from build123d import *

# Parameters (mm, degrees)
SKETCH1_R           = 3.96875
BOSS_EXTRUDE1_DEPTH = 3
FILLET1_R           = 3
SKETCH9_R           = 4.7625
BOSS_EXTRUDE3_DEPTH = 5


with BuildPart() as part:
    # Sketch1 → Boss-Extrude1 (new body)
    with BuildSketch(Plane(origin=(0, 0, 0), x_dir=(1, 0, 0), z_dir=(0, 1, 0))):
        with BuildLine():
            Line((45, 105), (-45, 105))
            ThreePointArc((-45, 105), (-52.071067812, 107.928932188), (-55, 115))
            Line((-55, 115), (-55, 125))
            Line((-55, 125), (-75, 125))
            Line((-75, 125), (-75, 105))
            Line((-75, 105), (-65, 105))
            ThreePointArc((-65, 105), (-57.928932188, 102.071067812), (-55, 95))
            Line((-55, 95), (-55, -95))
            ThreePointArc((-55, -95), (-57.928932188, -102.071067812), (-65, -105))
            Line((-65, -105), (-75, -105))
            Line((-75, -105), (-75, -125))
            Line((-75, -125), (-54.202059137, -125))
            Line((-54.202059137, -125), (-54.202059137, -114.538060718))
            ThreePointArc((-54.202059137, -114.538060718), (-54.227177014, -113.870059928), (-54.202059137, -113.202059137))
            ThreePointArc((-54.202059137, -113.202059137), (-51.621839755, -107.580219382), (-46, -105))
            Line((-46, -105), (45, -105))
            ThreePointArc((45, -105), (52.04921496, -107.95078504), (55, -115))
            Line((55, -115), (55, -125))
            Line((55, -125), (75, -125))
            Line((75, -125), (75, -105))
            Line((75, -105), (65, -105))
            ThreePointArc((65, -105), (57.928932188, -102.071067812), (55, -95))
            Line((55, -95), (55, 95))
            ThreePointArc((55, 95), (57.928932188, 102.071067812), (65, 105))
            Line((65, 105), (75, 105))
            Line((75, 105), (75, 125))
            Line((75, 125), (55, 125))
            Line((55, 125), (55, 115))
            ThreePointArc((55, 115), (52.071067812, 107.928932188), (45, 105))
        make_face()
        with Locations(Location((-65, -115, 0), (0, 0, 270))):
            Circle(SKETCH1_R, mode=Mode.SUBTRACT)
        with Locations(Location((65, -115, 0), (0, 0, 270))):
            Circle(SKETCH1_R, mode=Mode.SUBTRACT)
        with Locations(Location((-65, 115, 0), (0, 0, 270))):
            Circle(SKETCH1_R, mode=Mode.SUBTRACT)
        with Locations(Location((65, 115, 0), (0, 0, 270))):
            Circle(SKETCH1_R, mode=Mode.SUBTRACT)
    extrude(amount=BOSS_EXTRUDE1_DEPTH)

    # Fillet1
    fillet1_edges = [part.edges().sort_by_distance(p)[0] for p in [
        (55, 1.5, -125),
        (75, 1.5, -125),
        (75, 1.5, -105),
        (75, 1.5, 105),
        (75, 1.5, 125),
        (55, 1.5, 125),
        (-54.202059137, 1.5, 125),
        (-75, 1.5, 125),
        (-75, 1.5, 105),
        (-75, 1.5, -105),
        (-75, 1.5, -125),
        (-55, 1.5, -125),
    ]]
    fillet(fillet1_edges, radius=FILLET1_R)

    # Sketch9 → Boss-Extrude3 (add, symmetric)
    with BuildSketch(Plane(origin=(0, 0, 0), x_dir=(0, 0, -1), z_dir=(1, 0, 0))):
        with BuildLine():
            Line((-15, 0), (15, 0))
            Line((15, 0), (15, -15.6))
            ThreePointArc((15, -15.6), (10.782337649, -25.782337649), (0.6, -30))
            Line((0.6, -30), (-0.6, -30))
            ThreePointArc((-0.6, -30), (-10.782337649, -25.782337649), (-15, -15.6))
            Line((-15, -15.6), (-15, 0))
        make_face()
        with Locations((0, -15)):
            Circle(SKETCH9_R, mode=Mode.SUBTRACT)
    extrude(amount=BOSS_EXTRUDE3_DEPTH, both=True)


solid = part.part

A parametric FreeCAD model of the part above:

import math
import FreeCAD as App
import Part
import Sketcher

V = App.Vector
Q = App.Units.Quantity


def edges_at(feature, points):
    """Names of the edges that pass closest to the given points."""
    edges = feature.Shape.Edges
    near = lambda p: min(range(len(edges)), key=lambda i: edges[i].distToShape(Part.Vertex(*p))[0])
    return sorted({f"Edge{near(p) + 1}" for p in points})

doc = App.newDocument("Part")
params = doc.addObject("Spreadsheet::Sheet", "Params")
for row, (alias, value) in enumerate([
    ("sketch1_radius", "10 mm"),
    ("sketch1_width", "90 mm"),
    ("sketch1_width2", "20 mm"),
    ("sketch1_width3", "91 mm"),
    ("sketch1_height", "190 mm"),
    ("pad1_length", "3 mm"),
    ("fillet_radius", "3 mm"),
    ("sketch2_radius", "14.4 mm"),
    ("sketch2_height", "30 mm"),
    ("sketch2_width", "15.6 mm"),
    ("pad2_length", "10 mm"),
], start=1):
    params.set(f"A{row}", alias)
    params.set(f"B{row}", "=" + value)
    params.setAlias(f"B{row}", alias)

body = doc.addObject("PartDesign::Body", "Body")

# Sketch on XZ plane
sketch1 = doc.addObject("Sketcher::SketchObject", "Sketch")
body.addObject(sketch1)
sketch1.AttachmentSupport = (doc.XZ_Plane, [""])
sketch1.MapMode = "FlatFace"
sketch1.addGeometry([
    Part.LineSegment(V(45, -105, 0), V(-45, -105, 0)),  # 0
    Part.ArcOfCircle(Part.Circle(V(-45, -115, 0), V(0, 0, 1), 10), math.radians(90), math.radians(180)),  # 1
    Part.LineSegment(V(-55, -115, 0), V(-55, -125, 0)),  # 2
    Part.LineSegment(V(-55, -125, 0), V(-75, -125, 0)),  # 3
    Part.LineSegment(V(-75, -125, 0), V(-75, -105, 0)),  # 4
    Part.LineSegment(V(-75, -105, 0), V(-65, -105, 0)),  # 5
    Part.ArcOfCircle(Part.Circle(V(-65, -95, 0), V(0, 0, 1), 10), math.radians(-90), math.radians(0)),  # 6
    Part.LineSegment(V(-55, -95, 0), V(-55, 95, 0)),  # 7
    Part.ArcOfCircle(Part.Circle(V(-65, 95, 0), V(0, 0, 1), 10), math.radians(0), math.radians(90)),  # 8
    Part.LineSegment(V(-65, 105, 0), V(-75, 105, 0)),  # 9
    Part.LineSegment(V(-75, 105, 0), V(-75, 125, 0)),  # 10
    Part.LineSegment(V(-75, 125, 0), V(-54.2, 125, 0)),  # 11
    Part.LineSegment(V(-54.2, 125, 0), V(-54.2, 114.5, 0)),  # 12
    Part.ArcOfCircle(Part.Circle(V(-45.3, 113.9, 0), V(0, 0, 1), 8.9), math.radians(175.69), math.radians(184.31)),  # 13
    Part.ArcOfCircle(Part.Circle(V(-45.3, 113.9, 0), V(0, 0, 1), 8.9), math.radians(-176), math.radians(-94)),  # 14
    Part.LineSegment(V(-46, 105, 0), V(45, 105, 0)),  # 15
    Part.ArcOfCircle(Part.Circle(V(44.9, 115.1, 0), V(0, 0, 1), 10.1), math.radians(-90), math.radians(0)),  # 16
    Part.LineSegment(V(55, 115, 0), V(55, 125, 0)),  # 17
    Part.LineSegment(V(55, 125, 0), V(75, 125, 0)),  # 18
    Part.LineSegment(V(75, 125, 0), V(75, 105, 0)),  # 19
    Part.LineSegment(V(75, 105, 0), V(65, 105, 0)),  # 20
    Part.ArcOfCircle(Part.Circle(V(65, 95, 0), V(0, 0, 1), 10), math.radians(90), math.radians(180)),  # 21
    Part.LineSegment(V(55, 95, 0), V(55, -95, 0)),  # 22
    Part.ArcOfCircle(Part.Circle(V(65, -95, 0), V(0, 0, 1), 10), math.radians(180), math.radians(270)),  # 23
    Part.LineSegment(V(65, -105, 0), V(75, -105, 0)),  # 24
    Part.LineSegment(V(75, -105, 0), V(75, -125, 0)),  # 25
    Part.LineSegment(V(75, -125, 0), V(55, -125, 0)),  # 26
    Part.LineSegment(V(55, -125, 0), V(55, -115, 0)),  # 27
    Part.ArcOfCircle(Part.Circle(V(45, -115, 0), V(0, 0, 1), 10), math.radians(0), math.radians(90)),  # 28
    Part.Circle(V(-65, 115, 0), V(0, 0, 1), 4),  # 29
    Part.Circle(V(65, 115, 0), V(0, 0, 1), 4),  # 30
    Part.Circle(V(-65, -115, 0), V(0, 0, 1), 4),  # 31
    Part.Circle(V(65, -115, 0), V(0, 0, 1), 4),  # 32
], False)
sketch1.addConstraint([
    Sketcher.Constraint("Tangent", 0, 2, 1, 1),
    Sketcher.Constraint("Tangent", 1, 2, 2, 1),
    Sketcher.Constraint("Coincident", 2, 2, 3, 1),
    Sketcher.Constraint("Coincident", 3, 2, 4, 1),
    Sketcher.Constraint("Coincident", 4, 2, 5, 1),
    Sketcher.Constraint("Tangent", 5, 2, 6, 1),
    Sketcher.Constraint("Tangent", 6, 2, 7, 1),
    Sketcher.Constraint("Tangent", 7, 2, 8, 1),
    Sketcher.Constraint("Tangent", 8, 2, 9, 1),
    Sketcher.Constraint("Coincident", 9, 2, 10, 1),
    Sketcher.Constraint("Coincident", 10, 2, 11, 1),
    Sketcher.Constraint("Coincident", 11, 2, 12, 1),
    Sketcher.Constraint("Coincident", 12, 2, 13, 1),
    Sketcher.Constraint("Tangent", 13, 2, 14, 1),
    Sketcher.Constraint("Coincident", 14, 2, 15, 1),
    Sketcher.Constraint("Coincident", 15, 2, 16, 1),
    Sketcher.Constraint("Coincident", 16, 2, 17, 1),
    Sketcher.Constraint("Coincident", 17, 2, 18, 1),
    Sketcher.Constraint("Coincident", 18, 2, 19, 1),
    Sketcher.Constraint("Coincident", 19, 2, 20, 1),
    Sketcher.Constraint("Tangent", 20, 2, 21, 1),
    Sketcher.Constraint("Tangent", 21, 2, 22, 1),
    Sketcher.Constraint("Tangent", 22, 2, 23, 1),
    Sketcher.Constraint("Tangent", 23, 2, 24, 1),
    Sketcher.Constraint("Coincident", 24, 2, 25, 1),
    Sketcher.Constraint("Coincident", 25, 2, 26, 1),
    Sketcher.Constraint("Coincident", 26, 2, 27, 1),
    Sketcher.Constraint("Tangent", 27, 2, 28, 1),
    Sketcher.Constraint("Tangent", 28, 2, 0, 1),
    Sketcher.Constraint("Horizontal", 0),
    Sketcher.Constraint("Vertical", 2),
    Sketcher.Constraint("Horizontal", 3),
    Sketcher.Constraint("Vertical", 4),
    Sketcher.Constraint("Horizontal", 5),
    Sketcher.Constraint("Vertical", 7),
    Sketcher.Constraint("Horizontal", 9),
    Sketcher.Constraint("Vertical", 10),
    Sketcher.Constraint("Horizontal", 11),
    Sketcher.Constraint("Vertical", 12),
    Sketcher.Constraint("Horizontal", 15),
    Sketcher.Constraint("Vertical", 17),
    Sketcher.Constraint("Horizontal", 18),
    Sketcher.Constraint("Vertical", 19),
    Sketcher.Constraint("Horizontal", 20),
    Sketcher.Constraint("Vertical", 22),
    Sketcher.Constraint("Horizontal", 24),
    Sketcher.Constraint("Vertical", 25),
    Sketcher.Constraint("Horizontal", 26),
    Sketcher.Constraint("Vertical", 27),
    Sketcher.Constraint("Equal", 1, 6),
    Sketcher.Constraint("Equal", 6, 8),
    Sketcher.Constraint("Equal", 13, 14),
    Sketcher.Constraint("Equal", 8, 21),
    Sketcher.Constraint("Equal", 21, 23),
    Sketcher.Constraint("Equal", 23, 28),
    Sketcher.Constraint("Equal", 29, 30),
    Sketcher.Constraint("Equal", 30, 31),
    Sketcher.Constraint("Equal", 31, 32),
    Sketcher.Constraint("Symmetric", 6, 3, 21, 3, -1, 1),
    Sketcher.Constraint("Symmetric", 30, 3, 31, 3, -1, 1),
    Sketcher.Constraint("Symmetric", 29, 3, 32, 3, -1, 1),
    Sketcher.Constraint("Symmetric", 0, 2, 15, 2, -1, 1),
    Sketcher.Constraint("Symmetric", 1, 2, 16, 2, -1, 1),
    Sketcher.Constraint("Symmetric", 3, 2, 18, 2, -1, 1),
    Sketcher.Constraint("Symmetric", 9, 2, 24, 2, -1, 1),
    Sketcher.Constraint("Symmetric", 29, 3, 30, 3, -2),
    Sketcher.Constraint("Symmetric", 10, 2, 18, 2, -2),
    Sketcher.Constraint("Symmetric", 2, 2, 26, 2, -2),
    Sketcher.Constraint("Horizontal", 8, 3, 21, 3),
    Sketcher.Constraint("Horizontal", 28, 3, 31, 3),
    Sketcher.Constraint("Horizontal", 0, 2, 4, 2),
    Sketcher.Constraint("Vertical", 8, 3, 29, 3),
    Sketcher.Constraint("Vertical", 2, 2, 6, 2),
    Sketcher.Constraint("Vertical", 12, 2, 13, 2),
    Sketcher.Constraint("Equal", 24, 2),
    Sketcher.Constraint("Radius", 1, Q("10 mm")),
    Sketcher.Constraint("DistanceX", 0, 2, 0, 1, Q("90 mm")),
    Sketcher.Constraint("DistanceX", 3, 2, 3, 1, Q("20 mm")),
    Sketcher.Constraint("DistanceX", 15, 1, 15, 2, Q("91 mm")),
    Sketcher.Constraint("DistanceY", 7, 1, 7, 2, Q("190 mm")),
    Sketcher.Constraint("Diameter", 29, Q("7.9375 mm")),
    Sketcher.Constraint("Radius", 16, Q("10.075571 mm")),
    Sketcher.Constraint("DistanceX", 13, 3, -1, 1, Q("45.331999 mm")),
    Sketcher.Constraint("Radius", 13, Q("8.895178 mm")),
    Sketcher.Constraint("DistanceY", 13, 3, 12, 2, Q("0.668001 mm")),
])
sketch1.setExpression("Constraints[75]", "Params.sketch1_radius")
sketch1.setExpression("Constraints[76]", "Params.sketch1_width")
sketch1.setExpression("Constraints[77]", "Params.sketch1_width2")
sketch1.setExpression("Constraints[78]", "Params.sketch1_width3")
sketch1.setExpression("Constraints[79]", "Params.sketch1_height")
pad1 = doc.addObject("PartDesign::Pad", "Pad")
body.addObject(pad1)
pad1.Profile = sketch1
pad1.setExpression("Length", "Params.pad1_length")
pad1.Reversed = True
doc.recompute()

fillet = doc.addObject("PartDesign::Fillet", "Fillet")
body.addObject(fillet)
fillet.Base = (pad1, edges_at(pad1, [
    (55, 1.5, -125),
    (75, 1.5, -125),
    (75, 1.5, -105),
    (75, 1.5, 105),
    (75, 1.5, 125),
    (55, 1.5, 125),
    (-54.202, 1.5, 125),
    (-75, 1.5, 125),
    (-75, 1.5, 105),
    (-75, 1.5, -105),
    (-75, 1.5, -125),
    (-55, 1.5, -125),
]))
fillet.setExpression("Radius", "Params.fillet_radius")

# Sketch on YZ plane
sketch2 = doc.addObject("Sketcher::SketchObject", "Sketch001")
body.addObject(sketch2)
sketch2.AttachmentSupport = (doc.YZ_Plane, [""])
sketch2.MapMode = "FlatFace"
sketch2.addGeometry([
    Part.LineSegment(V(0, -15, 0), V(0, 15, 0)),  # 0
    Part.LineSegment(V(0, 15, 0), V(-15.6, 15, 0)),  # 1
    Part.ArcOfCircle(Part.Circle(V(-15.6, 0.6, 0), V(0, 0, 1), 14.4), math.radians(90), math.radians(180)),  # 2
    Part.LineSegment(V(-30, 0.6, 0), V(-30, -0.6, 0)),  # 3
    Part.ArcOfCircle(Part.Circle(V(-15.6, -0.6, 0), V(0, 0, 1), 14.4), math.radians(180), math.radians(270)),  # 4
    Part.LineSegment(V(-15.6, -15, 0), V(0, -15, 0)),  # 5
    Part.Circle(V(-15, 0, 0), V(0, 0, 1), 4.8),  # 6
], False)
sketch2.addConstraint([
    Sketcher.Constraint("Coincident", 0, 2, 1, 1),
    Sketcher.Constraint("Tangent", 1, 2, 2, 1),
    Sketcher.Constraint("Tangent", 2, 2, 3, 1),
    Sketcher.Constraint("Tangent", 3, 2, 4, 1),
    Sketcher.Constraint("Tangent", 4, 2, 5, 1),
    Sketcher.Constraint("Coincident", 5, 2, 0, 1),
    Sketcher.Constraint("Vertical", 0),
    Sketcher.Constraint("Horizontal", 1),
    Sketcher.Constraint("Vertical", 3),
    Sketcher.Constraint("Horizontal", 5),
    Sketcher.Constraint("Equal", 2, 4),
    Sketcher.Constraint("Symmetric", 0, 2, 5, 2, -1, 1),
    Sketcher.Constraint("PointOnObject", 6, 3, -1),
    Sketcher.Constraint("Radius", 2, Q("14.4 mm")),
    Sketcher.Constraint("DistanceY", 0, 1, 0, 2, Q("30 mm")),
    Sketcher.Constraint("Diameter", 6, Q("9.525 mm")),
    Sketcher.Constraint("DistanceX", 1, 2, 1, 1, Q("15.6 mm")),
    Sketcher.Constraint("DistanceX", 6, 3, -1, 1, Q("15 mm")),
])
sketch2.setExpression("Constraints[13]", "Params.sketch2_radius")
sketch2.setExpression("Constraints[14]", "Params.sketch2_height")
sketch2.setExpression("Constraints[16]", "Params.sketch2_width")
pad2 = doc.addObject("PartDesign::Pad", "Pad001")
body.addObject(pad2)
pad2.Profile = sketch2
pad2.setExpression("Length", "Params.pad2_length")
pad2.Midplane = True

doc.recompute()
